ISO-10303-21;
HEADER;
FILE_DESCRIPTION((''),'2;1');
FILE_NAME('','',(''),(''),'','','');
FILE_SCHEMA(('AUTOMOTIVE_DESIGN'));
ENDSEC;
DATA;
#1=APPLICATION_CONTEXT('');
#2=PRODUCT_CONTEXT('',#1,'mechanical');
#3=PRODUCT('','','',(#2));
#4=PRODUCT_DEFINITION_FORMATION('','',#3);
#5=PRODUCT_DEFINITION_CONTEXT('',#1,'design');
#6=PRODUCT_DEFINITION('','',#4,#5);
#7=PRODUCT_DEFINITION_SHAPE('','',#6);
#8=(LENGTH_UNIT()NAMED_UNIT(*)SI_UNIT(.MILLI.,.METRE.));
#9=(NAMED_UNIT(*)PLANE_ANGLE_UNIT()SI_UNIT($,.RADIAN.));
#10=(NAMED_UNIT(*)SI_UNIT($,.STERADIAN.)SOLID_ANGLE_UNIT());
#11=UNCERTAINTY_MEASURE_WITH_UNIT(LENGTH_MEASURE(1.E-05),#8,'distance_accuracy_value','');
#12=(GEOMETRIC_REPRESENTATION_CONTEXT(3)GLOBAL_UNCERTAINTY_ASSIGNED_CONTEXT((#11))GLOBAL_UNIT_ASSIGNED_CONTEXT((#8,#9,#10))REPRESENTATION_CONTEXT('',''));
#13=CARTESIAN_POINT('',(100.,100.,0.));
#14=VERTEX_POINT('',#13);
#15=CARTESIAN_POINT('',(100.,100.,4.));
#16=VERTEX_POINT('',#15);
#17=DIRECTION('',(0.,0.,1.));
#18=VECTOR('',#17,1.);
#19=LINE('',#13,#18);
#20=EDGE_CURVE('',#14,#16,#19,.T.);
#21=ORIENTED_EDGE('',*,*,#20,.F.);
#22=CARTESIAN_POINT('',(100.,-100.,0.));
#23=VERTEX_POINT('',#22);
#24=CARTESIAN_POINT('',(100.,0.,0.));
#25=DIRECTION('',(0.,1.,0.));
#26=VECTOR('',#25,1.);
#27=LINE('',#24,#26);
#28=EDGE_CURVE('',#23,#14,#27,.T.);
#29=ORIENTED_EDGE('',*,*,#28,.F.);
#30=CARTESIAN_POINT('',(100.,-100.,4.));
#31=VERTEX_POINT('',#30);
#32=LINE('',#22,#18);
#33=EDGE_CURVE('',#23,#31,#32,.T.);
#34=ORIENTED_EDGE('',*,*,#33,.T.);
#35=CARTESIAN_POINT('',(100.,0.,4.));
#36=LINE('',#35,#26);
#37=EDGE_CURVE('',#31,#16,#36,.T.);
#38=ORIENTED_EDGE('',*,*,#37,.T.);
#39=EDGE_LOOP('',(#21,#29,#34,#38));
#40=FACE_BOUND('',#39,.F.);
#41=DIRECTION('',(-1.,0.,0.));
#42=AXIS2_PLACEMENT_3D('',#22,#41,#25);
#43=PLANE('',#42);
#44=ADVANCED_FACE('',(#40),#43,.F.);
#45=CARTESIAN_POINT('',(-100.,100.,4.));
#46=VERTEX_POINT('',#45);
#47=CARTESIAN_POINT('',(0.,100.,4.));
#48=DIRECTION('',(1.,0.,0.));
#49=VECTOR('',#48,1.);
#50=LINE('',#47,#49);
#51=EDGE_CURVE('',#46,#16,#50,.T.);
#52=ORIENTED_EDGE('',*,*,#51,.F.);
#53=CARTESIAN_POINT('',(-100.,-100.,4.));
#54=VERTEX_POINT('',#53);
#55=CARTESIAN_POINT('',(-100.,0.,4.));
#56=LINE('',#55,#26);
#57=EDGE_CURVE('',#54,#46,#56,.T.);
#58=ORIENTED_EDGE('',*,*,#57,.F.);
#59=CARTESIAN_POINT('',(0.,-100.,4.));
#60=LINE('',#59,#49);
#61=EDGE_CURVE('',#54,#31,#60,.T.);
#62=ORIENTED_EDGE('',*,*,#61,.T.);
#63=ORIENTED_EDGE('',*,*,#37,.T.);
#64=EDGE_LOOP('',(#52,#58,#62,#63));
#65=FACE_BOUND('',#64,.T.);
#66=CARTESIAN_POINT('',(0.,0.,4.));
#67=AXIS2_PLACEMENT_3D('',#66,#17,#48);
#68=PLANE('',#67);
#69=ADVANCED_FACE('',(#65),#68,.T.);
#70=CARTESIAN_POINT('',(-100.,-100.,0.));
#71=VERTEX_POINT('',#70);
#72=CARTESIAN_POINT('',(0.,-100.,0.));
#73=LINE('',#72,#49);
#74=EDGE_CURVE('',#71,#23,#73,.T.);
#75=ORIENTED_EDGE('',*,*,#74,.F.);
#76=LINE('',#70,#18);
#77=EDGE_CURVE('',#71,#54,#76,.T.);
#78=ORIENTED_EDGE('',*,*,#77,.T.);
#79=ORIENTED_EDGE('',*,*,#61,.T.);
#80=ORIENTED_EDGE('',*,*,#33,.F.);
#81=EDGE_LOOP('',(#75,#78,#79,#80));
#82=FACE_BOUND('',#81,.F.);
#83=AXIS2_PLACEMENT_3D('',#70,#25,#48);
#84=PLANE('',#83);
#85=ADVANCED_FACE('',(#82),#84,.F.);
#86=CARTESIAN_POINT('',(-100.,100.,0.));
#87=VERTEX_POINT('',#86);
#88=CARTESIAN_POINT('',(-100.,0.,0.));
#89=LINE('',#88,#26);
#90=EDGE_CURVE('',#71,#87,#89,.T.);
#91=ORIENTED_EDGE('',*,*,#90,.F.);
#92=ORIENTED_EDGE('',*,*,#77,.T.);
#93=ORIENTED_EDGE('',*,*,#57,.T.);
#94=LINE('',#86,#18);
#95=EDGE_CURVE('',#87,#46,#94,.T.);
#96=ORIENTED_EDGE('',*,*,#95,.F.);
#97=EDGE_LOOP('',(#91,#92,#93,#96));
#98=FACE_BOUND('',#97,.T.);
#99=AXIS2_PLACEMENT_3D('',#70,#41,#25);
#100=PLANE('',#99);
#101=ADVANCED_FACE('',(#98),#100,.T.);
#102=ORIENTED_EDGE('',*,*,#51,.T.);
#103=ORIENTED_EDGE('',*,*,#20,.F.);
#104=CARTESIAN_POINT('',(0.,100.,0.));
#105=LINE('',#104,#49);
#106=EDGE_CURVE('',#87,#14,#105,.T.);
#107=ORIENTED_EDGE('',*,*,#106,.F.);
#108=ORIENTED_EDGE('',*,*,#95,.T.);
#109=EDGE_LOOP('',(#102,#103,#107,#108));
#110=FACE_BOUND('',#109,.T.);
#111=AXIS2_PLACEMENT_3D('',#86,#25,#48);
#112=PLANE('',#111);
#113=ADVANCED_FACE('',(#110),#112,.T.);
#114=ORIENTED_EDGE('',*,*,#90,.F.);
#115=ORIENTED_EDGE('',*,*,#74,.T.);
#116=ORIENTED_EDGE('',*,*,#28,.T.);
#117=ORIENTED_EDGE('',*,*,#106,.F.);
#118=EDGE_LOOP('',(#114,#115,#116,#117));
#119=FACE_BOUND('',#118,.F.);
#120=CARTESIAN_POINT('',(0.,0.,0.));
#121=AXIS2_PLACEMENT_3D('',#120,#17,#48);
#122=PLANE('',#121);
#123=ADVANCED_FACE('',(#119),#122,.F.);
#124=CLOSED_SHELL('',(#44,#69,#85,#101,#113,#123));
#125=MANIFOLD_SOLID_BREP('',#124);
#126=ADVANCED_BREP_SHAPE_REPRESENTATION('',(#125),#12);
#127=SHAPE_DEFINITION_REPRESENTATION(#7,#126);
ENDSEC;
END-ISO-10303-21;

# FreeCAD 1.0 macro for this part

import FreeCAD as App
import Part
import Sketcher


def add_polygon(sketch, points):
    """Adds a closed chain of lines whose ends are joined by coincident constraints."""
    first, n = sketch.GeometryCount, len(points)
    for a, b in zip(points, points[1:] + points[:1]):
        sketch.addGeometry(Part.LineSegment(App.Vector(*a, 0), App.Vector(*b, 0)), False)
    for i in range(n):
        sketch.addConstraint(Sketcher.Constraint("Coincident", first + i, 2, first + (i + 1) % n, 1))

doc = App.newDocument("Part")
body = doc.addObject("PartDesign::Body", "Body")

sketch1 = body.newObject("Sketcher::SketchObject", "Sketch")
sketch1.AttachmentSupport = (doc.getObject("XY_Plane"), [""])
sketch1.MapMode = "FlatFace"
add_polygon(sketch1, [(-100, 100), (-100, -100), (100, -100), (100, 100)])
sketch1.addConstraint(Sketcher.Constraint("Vertical", 0))
sketch1.addConstraint(Sketcher.Constraint("Horizontal", 1))
sketch1.addConstraint(Sketcher.Constraint("Vertical", 2))
sketch1.addConstraint(Sketcher.Constraint("Horizontal", 3))
sketch1.addConstraint(Sketcher.Constraint("Symmetric", 0, 2, 2, 2, -1, 1))
sketch1.addConstraint(Sketcher.Constraint("Equal", 3, 0))
sketch1.addConstraint(Sketcher.Constraint("DistanceX", 1, 1, 1, 2, 200.0))
pad1 = body.newObject("PartDesign::Pad", "Pad")
pad1.Profile = sketch1
pad1.Length = 4

doc.recompute()
